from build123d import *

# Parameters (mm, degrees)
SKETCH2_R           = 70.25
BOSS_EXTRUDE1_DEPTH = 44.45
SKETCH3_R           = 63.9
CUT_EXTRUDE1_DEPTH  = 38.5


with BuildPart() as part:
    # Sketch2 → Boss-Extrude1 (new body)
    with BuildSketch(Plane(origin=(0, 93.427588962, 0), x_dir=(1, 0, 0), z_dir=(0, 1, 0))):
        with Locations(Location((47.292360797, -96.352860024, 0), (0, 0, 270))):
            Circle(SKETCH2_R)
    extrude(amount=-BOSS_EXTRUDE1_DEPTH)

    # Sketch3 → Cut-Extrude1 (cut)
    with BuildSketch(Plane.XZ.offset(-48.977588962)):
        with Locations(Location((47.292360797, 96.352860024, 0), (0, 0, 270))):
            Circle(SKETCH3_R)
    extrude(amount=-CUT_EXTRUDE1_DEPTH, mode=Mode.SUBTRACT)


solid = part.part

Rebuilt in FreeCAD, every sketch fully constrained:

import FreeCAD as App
import Part
import Sketcher
Q = App.Units.Quantity

doc = App.newDocument("Part")
body = doc.addObject("PartDesign::Body", "Body")

# Sketch on XZ plane
sketch1 = doc.addObject("Sketcher::SketchObject", "Sketch")
body.addObject(sketch1)
sketch1.AttachmentSupport = (doc.XZ_Plane, [""])
sketch1.MapMode = "FlatFace"
sketch1.AttachmentOffset = App.Placement(App.Vector(0, 0, -93.427589), App.Rotation())
sketch1.addGeometry(Part.Circle(App.Vector(47, 96, 0), App.Vector(0, 0, 1), 70), False)
sketch1.addConstraint(Sketcher.Constraint("Diameter", 0, Q("140.5 mm")))
sketch1.addConstraint(Sketcher.Constraint("DistanceX", -1, 1, 0, 3, Q("47.292361 mm")))
sketch1.addConstraint(Sketcher.Constraint("DistanceY", -1, 1, 0, 3, Q("96.35286 mm")))
pad1 = doc.addObject("PartDesign::Pad", "Pad")
body.addObject(pad1)
pad1.Profile = sketch1
pad1.Length = 44.45

# Sketch on XZ plane
sketch2 = doc.addObject("Sketcher::SketchObject", "Sketch001")
body.addObject(sketch2)
sketch2.AttachmentSupport = (doc.XZ_Plane, [""])
sketch2.MapMode = "FlatFace"
sketch2.AttachmentOffset = App.Placement(App.Vector(0, 0, -48.977589), App.Rotation())
sketch2.addGeometry(Part.Circle(App.Vector(47, 96, 0), App.Vector(0, 0, 1), 64), False)
sketch2.addConstraint(Sketcher.Constraint("Diameter", 0, Q("127.8 mm")))
sketch2.addConstraint(Sketcher.Constraint("DistanceX", -1, 1, 0, 3, Q("47.292361 mm")))
sketch2.addConstraint(Sketcher.Constraint("DistanceY", -1, 1, 0, 3, Q("96.35286 mm")))
pocket1 = doc.addObject("PartDesign::Pocket", "Pocket")
body.addObject(pocket1)
pocket1.Profile = sketch2
pocket1.Length = 38.5

doc.recompute()
